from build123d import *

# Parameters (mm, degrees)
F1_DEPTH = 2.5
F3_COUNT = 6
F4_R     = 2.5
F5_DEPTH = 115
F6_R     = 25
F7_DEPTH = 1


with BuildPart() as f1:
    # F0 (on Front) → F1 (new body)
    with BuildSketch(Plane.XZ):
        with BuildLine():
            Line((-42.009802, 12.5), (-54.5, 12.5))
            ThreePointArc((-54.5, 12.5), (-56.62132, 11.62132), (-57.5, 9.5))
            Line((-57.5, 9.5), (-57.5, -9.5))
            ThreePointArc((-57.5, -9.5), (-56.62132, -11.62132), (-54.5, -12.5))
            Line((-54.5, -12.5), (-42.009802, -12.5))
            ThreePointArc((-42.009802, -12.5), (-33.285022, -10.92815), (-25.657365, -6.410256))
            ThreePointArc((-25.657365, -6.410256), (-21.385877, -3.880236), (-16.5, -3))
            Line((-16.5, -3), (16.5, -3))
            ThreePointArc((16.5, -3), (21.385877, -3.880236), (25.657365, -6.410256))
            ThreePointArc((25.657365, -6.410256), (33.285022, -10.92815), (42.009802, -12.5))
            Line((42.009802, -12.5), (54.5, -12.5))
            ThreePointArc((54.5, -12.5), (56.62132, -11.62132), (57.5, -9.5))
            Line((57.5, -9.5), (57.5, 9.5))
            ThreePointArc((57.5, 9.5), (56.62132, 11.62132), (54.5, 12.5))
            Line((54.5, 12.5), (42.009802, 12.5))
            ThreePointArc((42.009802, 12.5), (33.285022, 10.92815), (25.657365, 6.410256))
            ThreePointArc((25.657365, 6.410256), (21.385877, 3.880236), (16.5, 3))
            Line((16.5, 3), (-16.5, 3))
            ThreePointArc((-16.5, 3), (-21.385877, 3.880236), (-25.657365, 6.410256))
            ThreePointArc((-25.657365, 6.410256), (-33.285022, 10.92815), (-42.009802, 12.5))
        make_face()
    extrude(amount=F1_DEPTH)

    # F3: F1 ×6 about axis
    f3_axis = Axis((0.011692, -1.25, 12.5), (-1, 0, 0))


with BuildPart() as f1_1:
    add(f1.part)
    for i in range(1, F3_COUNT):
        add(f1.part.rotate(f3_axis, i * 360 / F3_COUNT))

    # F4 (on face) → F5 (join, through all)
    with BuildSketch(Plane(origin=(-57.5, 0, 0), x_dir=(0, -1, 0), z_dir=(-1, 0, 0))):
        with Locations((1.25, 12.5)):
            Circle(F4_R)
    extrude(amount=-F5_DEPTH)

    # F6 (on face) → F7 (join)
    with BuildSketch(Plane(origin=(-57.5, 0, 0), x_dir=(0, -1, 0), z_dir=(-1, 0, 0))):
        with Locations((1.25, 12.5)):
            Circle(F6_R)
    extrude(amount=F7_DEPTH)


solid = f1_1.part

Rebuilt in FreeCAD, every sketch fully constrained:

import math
import FreeCAD as App
import Part
import Sketcher
from FreeCAD import Vector

doc = App.newDocument("Part")
params = doc.addObject("Spreadsheet::Sheet", "Params")
for row, (alias, value) in enumerate([
    ("sketch1_radius", "3.000001 mm"),
    ("sketch1_width", "33 mm"),
    ("sketch1_height", "19 mm"),
    ("pad1_length", "2.5 mm"),
    ("sketch2_diameter", "5 mm"),
    ("pad2_length", "115 mm"),
    ("sketch3_diameter", "50 mm"),
    ("pad3_length", "1 mm"),
], start=1):
    params.set(f"A{row}", alias)
    params.set(f"B{row}", "=" + value)
    params.setAlias(f"B{row}", alias)

body = doc.addObject("PartDesign::Body", "Body")

# Sketch on XZ plane
sketch1 = body.newObject("Sketcher::SketchObject", "Sketch")
sketch1.AttachmentSupport = (doc.getObject("XZ_Plane"), [""])
sketch1.MapMode = "FlatFace"
sketch1.addGeometry(Part.LineSegment(Vector(-42, 12.5, 0), Vector(-54.5, 12.5, 0)), False)
sketch1.addGeometry(Part.ArcOfCircle(Part.Circle(Vector(-54.5, 9.5, 0), Vector(0, 0, 1), 3), math.radians(90), math.radians(180)), False)
sketch1.addGeometry(Part.LineSegment(Vector(-57.5, 9.5, 0), Vector(-57.5, -9.5, 0)), False)
sketch1.addGeometry(Part.ArcOfCircle(Part.Circle(Vector(-54.5, -9.5, 0), Vector(0, 0, 1), 3), math.radians(-180), math.radians(-90)), False)
sketch1.addGeometry(Part.LineSegment(Vector(-54.5, -12.5, 0), Vector(-42, -12.5, 0)), False)
sketch1.addGeometry(Part.ArcOfCircle(Part.Circle(Vector(-42, 12.5, 0), Vector(0, 0, 1), 25), math.radians(-90), math.radians(-49)), False)
sketch1.addGeometry(Part.ArcOfCircle(Part.Circle(Vector(-16.5, -17, 0), Vector(0, 0, 1), 14), math.radians(90), math.radians(131)), False)
sketch1.addGeometry(Part.LineSegment(Vector(-16.5, -3, 0), Vector(16.5, -3, 0)), False)
sketch1.addGeometry(Part.ArcOfCircle(Part.Circle(Vector(16.5, -17, 0), Vector(0, 0, 1), 14), math.radians(49), math.radians(90)), False)
sketch1.addGeometry(Part.ArcOfCircle(Part.Circle(Vector(42, 12.5, 0), Vector(0, 0, 1), 25), math.radians(-131), math.radians(-90)), False)
sketch1.addGeometry(Part.LineSegment(Vector(42, -12.5, 0), Vector(54.5, -12.5, 0)), False)
sketch1.addGeometry(Part.ArcOfCircle(Part.Circle(Vector(54.5, -9.5, 0), Vector(0, 0, 1), 3), math.radians(-90), math.radians(0)), False)
sketch1.addGeometry(Part.LineSegment(Vector(57.5, -9.5, 0), Vector(57.5, 9.5, 0)), False)
sketch1.addGeometry(Part.ArcOfCircle(Part.Circle(Vector(54.5, 9.5, 0), Vector(0, 0, 1), 3), math.radians(0), math.radians(90)), False)
sketch1.addGeometry(Part.LineSegment(Vector(54.5, 12.5, 0), Vector(42, 12.5, 0)), False)
sketch1.addGeometry(Part.ArcOfCircle(Part.Circle(Vector(42, -12.5, 0), Vector(0, 0, 1), 25), math.radians(90), math.radians(131)), False)
sketch1.addGeometry(Part.ArcOfCircle(Part.Circle(Vector(16.5, 17, 0), Vector(0, 0, 1), 14), math.radians(-90), math.radians(-49)), False)
sketch1.addGeometry(Part.LineSegment(Vector(16.5, 3, 0), Vector(-16.5, 3, 0)), False)
sketch1.addGeometry(Part.ArcOfCircle(Part.Circle(Vector(-16.5, 17, 0), Vector(0, 0, 1), 14), math.radians(-131), math.radians(-90)), False)
sketch1.addGeometry(Part.ArcOfCircle(Part.Circle(Vector(-42, -12.5, 0), Vector(0, 0, 1), 25), math.radians(49), math.radians(90)), False)
sketch1.addConstraint(Sketcher.Constraint("Tangent", 0, 2, 1, 1))
sketch1.addConstraint(Sketcher.Constraint("Tangent", 1, 2, 2, 1))
sketch1.addConstraint(Sketcher.Constraint("Tangent", 2, 2, 3, 1))
sketch1.addConstraint(Sketcher.Constraint("Tangent", 3, 2, 4, 1))
sketch1.addConstraint(Sketcher.Constraint("Tangent", 4, 2, 5, 1))
sketch1.addConstraint(Sketcher.Constraint("Tangent", 5, 2, 6, 2))
sketch1.addConstraint(Sketcher.Constraint("Tangent", 6, 1, 7, 1))
sketch1.addConstraint(Sketcher.Constraint("Tangent", 7, 2, 8, 2))
sketch1.addConstraint(Sketcher.Constraint("Tangent", 8, 1, 9, 1))
sketch1.addConstraint(Sketcher.Constraint("Tangent", 9, 2, 10, 1))
sketch1.addConstraint(Sketcher.Constraint("Tangent", 10, 2, 11, 1))
sketch1.addConstraint(Sketcher.Constraint("Tangent", 11, 2, 12, 1))
sketch1.addConstraint(Sketcher.Constraint("Tangent", 12, 2, 13, 1))
sketch1.addConstraint(Sketcher.Constraint("Tangent", 13, 2, 14, 1))
sketch1.addConstraint(Sketcher.Constraint("Tangent", 14, 2, 15, 1))
sketch1.addConstraint(Sketcher.Constraint("Tangent", 15, 2, 16, 2))
sketch1.addConstraint(Sketcher.Constraint("Tangent", 16, 1, 17, 1))
sketch1.addConstraint(Sketcher.Constraint("Tangent", 17, 2, 18, 2))
sketch1.addConstraint(Sketcher.Constraint("Tangent", 18, 1, 19, 1))
sketch1.addConstraint(Sketcher.Constraint("Tangent", 19, 2, 0, 1))
sketch1.addConstraint(Sketcher.Constraint("Horizontal", 0))
sketch1.addConstraint(Sketcher.Constraint("Vertical", 2))
sketch1.addConstraint(Sketcher.Constraint("Horizontal", 4))
sketch1.addConstraint(Sketcher.Constraint("Horizontal", 7))
sketch1.addConstraint(Sketcher.Constraint("Horizontal", 10))
sketch1.addConstraint(Sketcher.Constraint("Vertical", 12))
sketch1.addConstraint(Sketcher.Constraint("Horizontal", 14))
sketch1.addConstraint(Sketcher.Constraint("Horizontal", 17))
sketch1.addConstraint(Sketcher.Constraint("Coincident", 4, 2, 19, 3))
sketch1.addConstraint(Sketcher.Constraint("Coincident", 9, 2, 15, 3))
sketch1.addConstraint(Sketcher.Constraint("Equal", 1, 3))
sketch1.addConstraint(Sketcher.Constraint("Equal", 6, 8))
sketch1.addConstraint(Sketcher.Constraint("Equal", 5, 9))
sketch1.addConstraint(Sketcher.Constraint("Equal", 3, 11))
sketch1.addConstraint(Sketcher.Constraint("Equal", 11, 13))
sketch1.addConstraint(Sketcher.Constraint("Equal", 9, 15))
sketch1.addConstraint(Sketcher.Constraint("Equal", 8, 16))
sketch1.addConstraint(Sketcher.Constraint("Equal", 16, 18))
sketch1.addConstraint(Sketcher.Constraint("Equal", 15, 19))
sketch1.addConstraint(Sketcher.Constraint("Symmetric", 1, 3, 11, 3, -1, 1))
sketch1.addConstraint(Sketcher.Constraint("Symmetric", 6, 3, 16, 3, -1, 1))
sketch1.addConstraint(Sketcher.Constraint("Horizontal", 5, 3, 9, 3))
sketch1.addConstraint(Sketcher.Constraint("Radius", 1, 3.000001))
sketch1.addConstraint(Sketcher.Constraint("DistanceX", 7, 1, 7, 2, 33.0))
sketch1.addConstraint(Sketcher.Constraint("DistanceY", 2, 2, 2, 1, 19.0))
sketch1.addConstraint(Sketcher.Constraint("DistanceY", 6, 1, -1, 1, 3.0))
sketch1.addConstraint(Sketcher.Constraint("DistanceX", 3, 3, 6, 3, 37.999999))
sketch1.addConstraint(Sketcher.Constraint("DistanceY", 6, 3, 5, 3, 29.499999))
sketch1.setExpression("Constraints[42]", "Params.sketch1_radius")
sketch1.setExpression("Constraints[43]", "Params.sketch1_width")
sketch1.setExpression("Constraints[44]", "Params.sketch1_height")
pad1 = body.newObject("PartDesign::Pad", "Pad")
pad1.Profile = sketch1
pad1.setExpression("Length", "Params.pad1_length")
body2 = doc.addObject("PartDesign::Body", "Body001")
doc.recompute()

body2.BaseFeature = body
doc.recompute()

body3 = doc.addObject("PartDesign::Body", "Body002")
body3.BaseFeature = body
body3.Placement = App.Placement(Vector(0, -11.450318, 5.167468), App.Rotation(Vector(-1, 0, 0), 60))
boolean = body2.newObject("PartDesign::Boolean", "Boolean")
boolean.Type = "Fuse"
boolean.addObjects([body3])
doc.recompute()

body4 = doc.addObject("PartDesign::Body", "Body003")
body4.BaseFeature = body
body4.Placement = App.Placement(Vector(0, -12.700318, 17.667468), App.Rotation(Vector(-1, 0, 0), 120))
boolean2 = body2.newObject("PartDesign::Boolean", "Boolean001")
boolean2.Type = "Fuse"
boolean2.addObjects([body4])
doc.recompute()

body5 = doc.addObject("PartDesign::Body", "Body004")
body5.BaseFeature = body
body5.Placement = App.Placement(Vector(0, -2.5, 25), App.Rotation(Vector(-1, 0, 0), 180))
boolean3 = body2.newObject("PartDesign::Boolean", "Boolean002")
boolean3.Type = "Fuse"
boolean3.addObjects([body5])
doc.recompute()

body6 = doc.addObject("PartDesign::Body", "Body005")
body6.BaseFeature = body
body6.Placement = App.Placement(Vector(0, 8.950318, 19.832532), App.Rotation(Vector(-1, 0, 0), 240))
boolean4 = body2.newObject("PartDesign::Boolean", "Boolean003")
boolean4.Type = "Fuse"
boolean4.addObjects([body6])
doc.recompute()

body.Placement = App.Placement(Vector(0, 10.200318, 7.332532), App.Rotation(Vector(-1, 0, 0), 300))
boolean5 = body2.newObject("PartDesign::Boolean", "Boolean004")
boolean5.Type = "Fuse"
boolean5.addObjects([body])

# Sketch on YZ plane
sketch2 = body2.newObject("Sketcher::SketchObject", "Sketch001")
sketch2.AttachmentSupport = (doc.getObject("YZ_Plane001"), [""])
sketch2.MapMode = "FlatFace"
sketch2.AttachmentOffset = App.Placement(Vector(0, 0, -57.5), App.Rotation())
sketch2.addGeometry(Part.Circle(Vector(-1.2, 12.5, 0), Vector(0, 0, 1), 2.5), False)
sketch2.addConstraint(Sketcher.Constraint("Diameter", 0, 5.0))
sketch2.addConstraint(Sketcher.Constraint("DistanceY", -1, 1, 0, 3, 12.5))
sketch2.addConstraint(Sketcher.Constraint("DistanceX", 0, 3, -1, 1, 1.25))
sketch2.setExpression("Constraints[0]", "Params.sketch2_diameter")
pad2 = body2.newObject("PartDesign::Pad", "Pad001")
pad2.Profile = sketch2
pad2.setExpression("Length", "Params.pad2_length")

# Sketch on YZ plane
sketch3 = body2.newObject("Sketcher::SketchObject", "Sketch002")
sketch3.AttachmentSupport = (doc.getObject("YZ_Plane001"), [""])
sketch3.MapMode = "FlatFace"
sketch3.AttachmentOffset = App.Placement(Vector(0, 0, -57.5), App.Rotation())
sketch3.addGeometry(Part.Circle(Vector(-1, 12, 0), Vector(0, 0, 1), 25), False)
sketch3.addConstraint(Sketcher.Constraint("Diameter", 0, 50.0))
sketch3.addConstraint(Sketcher.Constraint("DistanceY", -1, 1, 0, 3, 12.5))
sketch3.addConstraint(Sketcher.Constraint("DistanceX", 0, 3, -1, 1, 1.25))
sketch3.setExpression("Constraints[0]", "Params.sketch3_diameter")
pad3 = body2.newObject("PartDesign::Pad", "Pad002")
pad3.Profile = sketch3
pad3.setExpression("Length", "Params.pad3_length")
pad3.Reversed = True

doc.recompute()
